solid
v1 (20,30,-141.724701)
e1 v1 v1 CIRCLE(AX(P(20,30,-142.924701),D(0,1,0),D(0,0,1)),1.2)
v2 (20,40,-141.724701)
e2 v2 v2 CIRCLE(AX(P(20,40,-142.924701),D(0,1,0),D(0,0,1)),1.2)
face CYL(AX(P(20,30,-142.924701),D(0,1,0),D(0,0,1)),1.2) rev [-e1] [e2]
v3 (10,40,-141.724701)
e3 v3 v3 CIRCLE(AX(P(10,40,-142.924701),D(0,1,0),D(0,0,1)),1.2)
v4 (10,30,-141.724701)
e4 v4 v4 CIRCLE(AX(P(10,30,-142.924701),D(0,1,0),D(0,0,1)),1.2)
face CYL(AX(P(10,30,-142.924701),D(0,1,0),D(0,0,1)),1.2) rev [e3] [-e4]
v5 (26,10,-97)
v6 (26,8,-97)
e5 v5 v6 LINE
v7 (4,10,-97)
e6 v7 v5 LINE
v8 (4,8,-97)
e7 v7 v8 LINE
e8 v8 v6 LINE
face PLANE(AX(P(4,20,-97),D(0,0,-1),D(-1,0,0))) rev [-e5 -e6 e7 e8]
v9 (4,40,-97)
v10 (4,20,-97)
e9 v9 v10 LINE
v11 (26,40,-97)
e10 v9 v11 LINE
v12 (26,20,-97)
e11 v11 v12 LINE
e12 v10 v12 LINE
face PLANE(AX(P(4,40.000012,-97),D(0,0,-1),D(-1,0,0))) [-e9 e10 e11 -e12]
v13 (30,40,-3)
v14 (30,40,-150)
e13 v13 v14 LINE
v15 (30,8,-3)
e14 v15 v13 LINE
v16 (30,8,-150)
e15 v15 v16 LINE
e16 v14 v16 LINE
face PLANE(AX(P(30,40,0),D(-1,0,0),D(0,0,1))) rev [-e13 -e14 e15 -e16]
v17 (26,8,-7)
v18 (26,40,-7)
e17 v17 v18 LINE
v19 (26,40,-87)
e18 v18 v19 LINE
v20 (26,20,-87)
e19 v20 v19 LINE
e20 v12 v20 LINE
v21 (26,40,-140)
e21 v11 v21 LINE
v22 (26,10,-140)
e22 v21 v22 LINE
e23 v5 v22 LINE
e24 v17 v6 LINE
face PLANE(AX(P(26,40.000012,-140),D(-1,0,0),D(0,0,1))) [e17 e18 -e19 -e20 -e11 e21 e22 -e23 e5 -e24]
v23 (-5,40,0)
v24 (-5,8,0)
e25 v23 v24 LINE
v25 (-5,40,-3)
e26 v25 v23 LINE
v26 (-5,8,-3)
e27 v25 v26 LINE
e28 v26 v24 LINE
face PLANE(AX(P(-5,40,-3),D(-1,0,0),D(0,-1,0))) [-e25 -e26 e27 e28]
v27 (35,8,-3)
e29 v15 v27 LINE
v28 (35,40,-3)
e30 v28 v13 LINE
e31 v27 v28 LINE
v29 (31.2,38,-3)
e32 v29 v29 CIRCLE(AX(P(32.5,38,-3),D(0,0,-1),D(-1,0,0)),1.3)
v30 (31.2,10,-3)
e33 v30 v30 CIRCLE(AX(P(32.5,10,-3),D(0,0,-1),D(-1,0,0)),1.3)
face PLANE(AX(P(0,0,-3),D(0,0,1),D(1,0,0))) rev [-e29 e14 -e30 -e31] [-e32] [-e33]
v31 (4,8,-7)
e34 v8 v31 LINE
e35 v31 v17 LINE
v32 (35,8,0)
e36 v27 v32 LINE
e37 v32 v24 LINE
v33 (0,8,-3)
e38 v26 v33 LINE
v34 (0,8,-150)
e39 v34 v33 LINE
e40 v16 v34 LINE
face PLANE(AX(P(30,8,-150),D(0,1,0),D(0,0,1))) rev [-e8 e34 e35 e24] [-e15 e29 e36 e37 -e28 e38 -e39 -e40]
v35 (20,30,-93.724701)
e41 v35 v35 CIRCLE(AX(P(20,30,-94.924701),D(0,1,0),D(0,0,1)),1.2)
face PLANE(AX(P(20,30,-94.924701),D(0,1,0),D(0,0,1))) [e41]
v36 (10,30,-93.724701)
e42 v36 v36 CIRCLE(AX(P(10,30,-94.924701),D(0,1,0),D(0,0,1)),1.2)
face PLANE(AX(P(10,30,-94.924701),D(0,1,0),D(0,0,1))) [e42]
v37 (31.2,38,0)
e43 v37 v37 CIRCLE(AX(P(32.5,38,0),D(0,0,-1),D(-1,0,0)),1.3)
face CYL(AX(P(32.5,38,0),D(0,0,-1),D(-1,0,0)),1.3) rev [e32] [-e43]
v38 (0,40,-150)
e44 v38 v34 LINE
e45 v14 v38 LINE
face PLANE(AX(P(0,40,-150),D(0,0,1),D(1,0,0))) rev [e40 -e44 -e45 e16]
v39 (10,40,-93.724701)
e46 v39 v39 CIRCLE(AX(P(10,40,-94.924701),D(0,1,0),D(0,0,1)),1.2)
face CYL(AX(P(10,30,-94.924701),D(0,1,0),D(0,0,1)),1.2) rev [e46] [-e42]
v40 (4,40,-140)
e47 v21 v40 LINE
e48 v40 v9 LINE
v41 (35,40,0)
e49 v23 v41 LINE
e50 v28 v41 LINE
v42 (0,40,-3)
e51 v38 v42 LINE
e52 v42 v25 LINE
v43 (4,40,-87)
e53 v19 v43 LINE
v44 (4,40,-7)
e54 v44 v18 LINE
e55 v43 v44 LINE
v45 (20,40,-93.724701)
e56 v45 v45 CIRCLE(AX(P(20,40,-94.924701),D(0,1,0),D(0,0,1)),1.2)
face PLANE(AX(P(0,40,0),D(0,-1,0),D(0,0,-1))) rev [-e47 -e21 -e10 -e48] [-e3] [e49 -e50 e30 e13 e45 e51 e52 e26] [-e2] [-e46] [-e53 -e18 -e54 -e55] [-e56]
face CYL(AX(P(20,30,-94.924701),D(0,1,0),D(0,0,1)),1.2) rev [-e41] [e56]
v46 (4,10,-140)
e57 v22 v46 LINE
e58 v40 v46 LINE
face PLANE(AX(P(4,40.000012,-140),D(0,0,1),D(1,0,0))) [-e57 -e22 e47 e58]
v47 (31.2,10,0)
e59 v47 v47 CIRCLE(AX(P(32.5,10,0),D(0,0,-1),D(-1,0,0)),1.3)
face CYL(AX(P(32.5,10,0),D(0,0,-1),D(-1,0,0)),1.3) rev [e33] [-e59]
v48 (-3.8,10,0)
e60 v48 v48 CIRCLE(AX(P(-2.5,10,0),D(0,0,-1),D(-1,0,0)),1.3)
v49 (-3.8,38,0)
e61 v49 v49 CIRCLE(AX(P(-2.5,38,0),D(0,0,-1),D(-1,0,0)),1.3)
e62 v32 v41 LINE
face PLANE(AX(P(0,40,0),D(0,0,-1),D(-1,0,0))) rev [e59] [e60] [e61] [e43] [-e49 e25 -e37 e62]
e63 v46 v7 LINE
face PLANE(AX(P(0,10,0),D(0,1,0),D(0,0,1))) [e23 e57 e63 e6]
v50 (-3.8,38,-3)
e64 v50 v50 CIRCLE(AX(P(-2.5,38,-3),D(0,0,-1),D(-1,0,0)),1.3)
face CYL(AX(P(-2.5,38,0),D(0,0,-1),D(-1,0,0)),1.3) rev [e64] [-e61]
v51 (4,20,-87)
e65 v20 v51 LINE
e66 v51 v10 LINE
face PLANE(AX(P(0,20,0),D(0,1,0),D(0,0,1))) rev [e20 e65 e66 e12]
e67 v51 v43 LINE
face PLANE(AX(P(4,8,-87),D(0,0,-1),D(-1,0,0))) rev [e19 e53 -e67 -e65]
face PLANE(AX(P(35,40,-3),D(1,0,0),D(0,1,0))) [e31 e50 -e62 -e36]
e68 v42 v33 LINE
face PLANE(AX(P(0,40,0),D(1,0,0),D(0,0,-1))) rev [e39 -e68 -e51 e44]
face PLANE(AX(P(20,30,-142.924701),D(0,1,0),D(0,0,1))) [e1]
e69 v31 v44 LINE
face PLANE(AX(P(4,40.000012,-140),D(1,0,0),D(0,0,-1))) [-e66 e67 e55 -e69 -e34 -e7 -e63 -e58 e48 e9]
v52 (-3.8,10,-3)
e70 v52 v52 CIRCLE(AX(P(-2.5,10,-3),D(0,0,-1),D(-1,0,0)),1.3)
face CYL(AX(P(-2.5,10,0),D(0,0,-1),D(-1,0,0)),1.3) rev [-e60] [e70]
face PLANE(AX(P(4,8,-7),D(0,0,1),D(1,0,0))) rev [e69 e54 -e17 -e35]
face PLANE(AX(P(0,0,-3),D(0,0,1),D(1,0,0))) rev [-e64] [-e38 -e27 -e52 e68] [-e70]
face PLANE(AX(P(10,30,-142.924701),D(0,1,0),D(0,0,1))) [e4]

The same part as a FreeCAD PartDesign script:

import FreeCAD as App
import Part
import Sketcher

V = App.Vector

doc = App.newDocument("Part")
body = doc.addObject("PartDesign::Body", "Body")

sketch1 = body.newObject("Sketcher::SketchObject", "Sketch")
sketch1.AttachmentSupport = (doc.getObject("XZ_Plane"), [""])
sketch1.MapMode = "FlatFace"
sketch1.addGeometry([
    Part.LineSegment(V(0, -150, 0), V(0, 0, 0)),
    Part.LineSegment(V(0, 0, 0), V(30, 0, 0)),
    Part.LineSegment(V(30, 0, 0), V(30, -150, 0)),
    Part.LineSegment(V(30, -150, 0), V(0, -150, 0)),
], False)
sketch1.addConstraint([
    Sketcher.Constraint("Coincident", 0, 2, 1, 1),
    Sketcher.Constraint("Coincident", 1, 2, 2, 1),
    Sketcher.Constraint("Coincident", 2, 2, 3, 1),
    Sketcher.Constraint("Coincident", 3, 2, 0, 1),
    Sketcher.Constraint("Vertical", 0),
    Sketcher.Constraint("Horizontal", 1),
    Sketcher.Constraint("Vertical", 2),
    Sketcher.Constraint("Horizontal", 3),
    Sketcher.Constraint("Coincident", 0, 2, -1, 1),
    Sketcher.Constraint("DistanceX", 1, 1, 1, 2, 30.0),
    Sketcher.Constraint("DistanceY", 0, 1, 0, 2, 150.0),
])
pad1 = body.newObject("PartDesign::Pad", "Pad")
pad1.Profile = sketch1
pad1.Length = 40
pad1.Reversed = True

sketch2 = body.newObject("Sketcher::SketchObject", "Sketch001")
sketch2.AttachmentSupport = (doc.getObject("XZ_Plane"), [""])
sketch2.MapMode = "FlatFace"
sketch2.AttachmentOffset = App.Placement(V(0, 0, -40), App.Rotation())
sketch2.addGeometry([
    Part.LineSegment(V(4, -140, 0), V(4, -97, 0)),
    Part.LineSegment(V(4, -97, 0), V(26, -97, 0)),
    Part.LineSegment(V(26, -97, 0), V(26, -140, 0)),
    Part.LineSegment(V(26, -140, 0), V(4, -140, 0)),
], False)
sketch2.addConstraint([
    Sketcher.Constraint("Coincident", 0, 2, 1, 1),
    Sketcher.Constraint("Coincident", 1, 2, 2, 1),
    Sketcher.Constraint("Coincident", 2, 2, 3, 1),
    Sketcher.Constraint("Coincident", 3, 2, 0, 1),
    Sketcher.Constraint("Vertical", 0),
    Sketcher.Constraint("Horizontal", 1),
    Sketcher.Constraint("Vertical", 2),
    Sketcher.Constraint("Horizontal", 3),
    Sketcher.Constraint("DistanceX", 1, 1, 1, 2, 22.0),
    Sketcher.Constraint("DistanceY", 0, 1, 0, 2, 43.0),
    Sketcher.Constraint("DistanceX", -1, 1, 0, 2, 4.0),
    Sketcher.Constraint("DistanceY", 0, 2, -1, 1, 97.0),
])
pocket1 = body.newObject("PartDesign::Pocket", "Pocket")
pocket1.Profile = sketch2
pocket1.Type = "TwoLengths"
pocket1.Length = 159.113883
pocket1.Length2 = 30

sketch3 = body.newObject("Sketcher::SketchObject", "Sketch002")
sketch3.AttachmentSupport = (doc.getObject("XZ_Plane"), [""])
sketch3.MapMode = "FlatFace"
sketch3.addGeometry([
    Part.LineSegment(V(4, -87, 0), V(4, -97, 0)),
    Part.LineSegment(V(4, -97, 0), V(26, -97, 0)),
    Part.LineSegment(V(26, -97, 0), V(26, -87, 0)),
    Part.LineSegment(V(26, -87, 0), V(4, -87, 0)),
], False)
sketch3.addConstraint([
    Sketcher.Constraint("Coincident", 0, 2, 1, 1),
    Sketcher.Constraint("Coincident", 1, 2, 2, 1),
    Sketcher.Constraint("Coincident", 2, 2, 3, 1),
    Sketcher.Constraint("Coincident", 3, 2, 0, 1),
    Sketcher.Constraint("Vertical", 0),
    Sketcher.Constraint("Horizontal", 1),
    Sketcher.Constraint("Vertical", 2),
    Sketcher.Constraint("Horizontal", 3),
    Sketcher.Constraint("DistanceX", 1, 1, 1, 2, 22.0),
    Sketcher.Constraint("DistanceY", 0, 2, 0, 1, 10.0),
    Sketcher.Constraint("DistanceX", -1, 1, 0, 2, 4.0),
    Sketcher.Constraint("DistanceY", 0, 2, -1, 1, 97.0),
])
pocket2 = body.newObject("PartDesign::Pocket", "Pocket001")
pocket2.Profile = sketch3
pocket2.Length = 20

sketch4 = body.newObject("Sketcher::SketchObject", "Sketch003")
sketch4.AttachmentSupport = (doc.getObject("YZ_Plane"), [""])
sketch4.MapMode = "FlatFace"
sketch4.addGeometry([
    Part.LineSegment(V(8, -150, 0), V(0, -150, 0)),
    Part.LineSegment(V(0, -150, 0), V(0, 0, 0)),
    Part.LineSegment(V(0, 0, 0), V(8, 0, 0)),
    Part.LineSegment(V(8, 0, 0), V(8, -150, 0)),
], False)
sketch4.addConstraint([
    Sketcher.Constraint("Coincident", 0, 2, 1, 1),
    Sketcher.Constraint("Coincident", 1, 2, 2, 1),
    Sketcher.Constraint("Coincident", 2, 2, 3, 1),
    Sketcher.Constraint("Coincident", 3, 2, 0, 1),
    Sketcher.Constraint("Horizontal", 0),
    Sketcher.Constraint("Vertical", 1),
    Sketcher.Constraint("Horizontal", 2),
    Sketcher.Constraint("Vertical", 3),
    Sketcher.Constraint("Coincident", 1, 2, -1, 1),
    Sketcher.Constraint("DistanceX", 0, 2, 0, 1, 8.0),
    Sketcher.Constraint("DistanceY", 1, 1, 1, 2, 150.0),
])
pocket3 = body.newObject("PartDesign::Pocket", "Pocket002")
pocket3.Profile = sketch4
pocket3.Type = "ThroughAll"
pocket3.Midplane = True

sketch5 = body.newObject("Sketcher::SketchObject", "Sketch004")
sketch5.AttachmentSupport = (doc.getObject("XZ_Plane"), [""])
sketch5.MapMode = "FlatFace"
sketch5.AttachmentOffset = App.Placement(V(0, 0, -40), App.Rotation())
sketch5.addGeometry([
    Part.Circle(V(10, -142.924701, 0), V(0, 0, 1), 1.2),
    Part.Circle(V(20, -142.924701, 0), V(0, 0, 1), 1.2),
    Part.Circle(V(10, -94.924701, 0), V(0, 0, 1), 1.2),
    Part.Circle(V(20, -94.924701, 0), V(0, 0, 1), 1.2),
], False)
sketch5.addConstraint([
    Sketcher.Constraint("Equal", 0, 1),
    Sketcher.Constraint("Equal", 1, 2),
    Sketcher.Constraint("Equal", 2, 3),
    Sketcher.Constraint("Horizontal", 0, 3, 1, 3),
    Sketcher.Constraint("Horizontal", 2, 3, 3, 3),
    Sketcher.Constraint("Vertical", 0, 3, 2, 3),
    Sketcher.Constraint("Vertical", 1, 3, 3, 3),
    Sketcher.Constraint("Diameter", 0, 2.4),
    Sketcher.Constraint("DistanceX", -1, 1, 0, 3, 10.0),
    Sketcher.Constraint("DistanceX", -1, 1, 1, 3, 20.0),
    Sketcher.Constraint("DistanceY", 0, 3, 2, 3, 48.0),
    Sketcher.Constraint("DistanceY", 0, 3, -1, 1, 142.924701),
])
pocket4 = body.newObject("PartDesign::Pocket", "Pocket003")
pocket4.Profile = sketch5
pocket4.Length = 10
pocket4.Reversed = True

sketch6 = body.newObject("Sketcher::SketchObject", "Sketch005")
sketch6.AttachmentSupport = (doc.getObject("XY_Plane"), [""])
sketch6.MapMode = "FlatFace"
sketch6.addGeometry([
    Part.LineSegment(V(-5, 40, 0), V(-5, 8, 0)),
    Part.LineSegment(V(-5, 8, 0), V(35, 8, 0)),
    Part.LineSegment(V(35, 8, 0), V(35, 40, 0)),
    Part.LineSegment(V(35, 40, 0), V(-5, 40, 0)),
], False)
sketch6.addConstraint([
    Sketcher.Constraint("Coincident", 0, 2, 1, 1),
    Sketcher.Constraint("Coincident", 1, 2, 2, 1),
    Sketcher.Constraint("Coincident", 2, 2, 3, 1),
    Sketcher.Constraint("Coincident", 3, 2, 0, 1),
    Sketcher.Constraint("Vertical", 0),
    Sketcher.Constraint("Horizontal", 1),
    Sketcher.Constraint("Vertical", 2),
    Sketcher.Constraint("Horizontal", 3),
    Sketcher.Constraint("DistanceX", 1, 1, 1, 2, 40.0),
    Sketcher.Constraint("DistanceY", 0, 2, 0, 1, 32.0),
    Sketcher.Constraint("DistanceX", 0, 2, -1, 1, 5.0),
    Sketcher.Constraint("DistanceY", -1, 1, 0, 2, 8.0),
])
pad2 = body.newObject("PartDesign::Pad", "Pad001")
pad2.Profile = sketch6
pad2.Length = 3
pad2.Reversed = True

sketch7 = body.newObject("Sketcher::SketchObject", "Sketch006")
sketch7.AttachmentSupport = (doc.getObject("XY_Plane"), [""])
sketch7.MapMode = "FlatFace"
sketch7.AttachmentOffset = App.Placement(V(0, 0, -3), App.Rotation())
sketch7.addGeometry([
    Part.Circle(V(32.5, 38, 0), V(0, 0, 1), 1.3),
    Part.Circle(V(32.5, 10, 0), V(0, 0, 1), 1.3),
    Part.Circle(V(-2.5, 38, 0), V(0, 0, 1), 1.3),
    Part.Circle(V(-2.5, 10, 0), V(0, 0, 1), 1.3),
], False)
sketch7.addConstraint([
    Sketcher.Constraint("Equal", 0, 1),
    Sketcher.Constraint("Equal", 1, 2),
    Sketcher.Constraint("Equal", 2, 3),
    Sketcher.Constraint("Horizontal", 0, 3, 2, 3),
    Sketcher.Constraint("Horizontal", 1, 3, 3, 3),
    Sketcher.Constraint("Vertical", 0, 3, 1, 3),
    Sketcher.Constraint("Vertical", 2, 3, 3, 3),
    Sketcher.Constraint("Diameter", 0, 2.6),
    Sketcher.Constraint("DistanceY", -1, 1, 0, 3, 38.0),
    Sketcher.Constraint("DistanceY", -1, 1, 1, 3, 10.0),
    Sketcher.Constraint("DistanceX", 2, 3, 0, 3, 35.0),
    Sketcher.Constraint("DistanceX", -1, 1, 0, 3, 32.5),
])
pocket5 = body.newObject("PartDesign::Pocket", "Pocket004")
pocket5.Profile = sketch7
pocket5.Type = "ThroughAll"
pocket5.Reversed = True

sketch8 = body.newObject("Sketcher::SketchObject", "Sketch007")
sketch8.AttachmentSupport = (doc.getObject("XZ_Plane"), [""])
sketch8.MapMode = "FlatFace"
sketch8.AttachmentOffset = App.Placement(V(0, 0, -40), App.Rotation())
sketch8.addGeometry([
    Part.LineSegment(V(4, -87, 0), V(4, -7, 0)),
    Part.LineSegment(V(4, -7, 0), V(26, -7, 0)),
    Part.LineSegment(V(26, -7, 0), V(26, -87, 0)),
    Part.LineSegment(V(26, -87, 0), V(4, -87, 0)),
], False)
sketch8.addConstraint([
    Sketcher.Constraint("Coincident", 0, 2, 1, 1),
    Sketcher.Constraint("Coincident", 1, 2, 2, 1),
    Sketcher.Constraint("Coincident", 2, 2, 3, 1),
    Sketcher.Constraint("Coincident", 3, 2, 0, 1),
    Sketcher.Constraint("Vertical", 0),
    Sketcher.Constraint("Horizontal", 1),
    Sketcher.Constraint("Vertical", 2),
    Sketcher.Constraint("Horizontal", 3),
    Sketcher.Constraint("DistanceX", 1, 1, 1, 2, 22.0),
    Sketcher.Constraint("DistanceY", 0, 1, 0, 2, 80.0),
    Sketcher.Constraint("DistanceX", -1, 1, 0, 2, 4.0),
    Sketcher.Constraint("DistanceY", 0, 2, -1, 1, 7.0),
])
pocket6 = body.newObject("PartDesign::Pocket", "Pocket005")
pocket6.Profile = sketch8
pocket6.Type = "ThroughAll"
pocket6.Reversed = True

doc.recompute()
